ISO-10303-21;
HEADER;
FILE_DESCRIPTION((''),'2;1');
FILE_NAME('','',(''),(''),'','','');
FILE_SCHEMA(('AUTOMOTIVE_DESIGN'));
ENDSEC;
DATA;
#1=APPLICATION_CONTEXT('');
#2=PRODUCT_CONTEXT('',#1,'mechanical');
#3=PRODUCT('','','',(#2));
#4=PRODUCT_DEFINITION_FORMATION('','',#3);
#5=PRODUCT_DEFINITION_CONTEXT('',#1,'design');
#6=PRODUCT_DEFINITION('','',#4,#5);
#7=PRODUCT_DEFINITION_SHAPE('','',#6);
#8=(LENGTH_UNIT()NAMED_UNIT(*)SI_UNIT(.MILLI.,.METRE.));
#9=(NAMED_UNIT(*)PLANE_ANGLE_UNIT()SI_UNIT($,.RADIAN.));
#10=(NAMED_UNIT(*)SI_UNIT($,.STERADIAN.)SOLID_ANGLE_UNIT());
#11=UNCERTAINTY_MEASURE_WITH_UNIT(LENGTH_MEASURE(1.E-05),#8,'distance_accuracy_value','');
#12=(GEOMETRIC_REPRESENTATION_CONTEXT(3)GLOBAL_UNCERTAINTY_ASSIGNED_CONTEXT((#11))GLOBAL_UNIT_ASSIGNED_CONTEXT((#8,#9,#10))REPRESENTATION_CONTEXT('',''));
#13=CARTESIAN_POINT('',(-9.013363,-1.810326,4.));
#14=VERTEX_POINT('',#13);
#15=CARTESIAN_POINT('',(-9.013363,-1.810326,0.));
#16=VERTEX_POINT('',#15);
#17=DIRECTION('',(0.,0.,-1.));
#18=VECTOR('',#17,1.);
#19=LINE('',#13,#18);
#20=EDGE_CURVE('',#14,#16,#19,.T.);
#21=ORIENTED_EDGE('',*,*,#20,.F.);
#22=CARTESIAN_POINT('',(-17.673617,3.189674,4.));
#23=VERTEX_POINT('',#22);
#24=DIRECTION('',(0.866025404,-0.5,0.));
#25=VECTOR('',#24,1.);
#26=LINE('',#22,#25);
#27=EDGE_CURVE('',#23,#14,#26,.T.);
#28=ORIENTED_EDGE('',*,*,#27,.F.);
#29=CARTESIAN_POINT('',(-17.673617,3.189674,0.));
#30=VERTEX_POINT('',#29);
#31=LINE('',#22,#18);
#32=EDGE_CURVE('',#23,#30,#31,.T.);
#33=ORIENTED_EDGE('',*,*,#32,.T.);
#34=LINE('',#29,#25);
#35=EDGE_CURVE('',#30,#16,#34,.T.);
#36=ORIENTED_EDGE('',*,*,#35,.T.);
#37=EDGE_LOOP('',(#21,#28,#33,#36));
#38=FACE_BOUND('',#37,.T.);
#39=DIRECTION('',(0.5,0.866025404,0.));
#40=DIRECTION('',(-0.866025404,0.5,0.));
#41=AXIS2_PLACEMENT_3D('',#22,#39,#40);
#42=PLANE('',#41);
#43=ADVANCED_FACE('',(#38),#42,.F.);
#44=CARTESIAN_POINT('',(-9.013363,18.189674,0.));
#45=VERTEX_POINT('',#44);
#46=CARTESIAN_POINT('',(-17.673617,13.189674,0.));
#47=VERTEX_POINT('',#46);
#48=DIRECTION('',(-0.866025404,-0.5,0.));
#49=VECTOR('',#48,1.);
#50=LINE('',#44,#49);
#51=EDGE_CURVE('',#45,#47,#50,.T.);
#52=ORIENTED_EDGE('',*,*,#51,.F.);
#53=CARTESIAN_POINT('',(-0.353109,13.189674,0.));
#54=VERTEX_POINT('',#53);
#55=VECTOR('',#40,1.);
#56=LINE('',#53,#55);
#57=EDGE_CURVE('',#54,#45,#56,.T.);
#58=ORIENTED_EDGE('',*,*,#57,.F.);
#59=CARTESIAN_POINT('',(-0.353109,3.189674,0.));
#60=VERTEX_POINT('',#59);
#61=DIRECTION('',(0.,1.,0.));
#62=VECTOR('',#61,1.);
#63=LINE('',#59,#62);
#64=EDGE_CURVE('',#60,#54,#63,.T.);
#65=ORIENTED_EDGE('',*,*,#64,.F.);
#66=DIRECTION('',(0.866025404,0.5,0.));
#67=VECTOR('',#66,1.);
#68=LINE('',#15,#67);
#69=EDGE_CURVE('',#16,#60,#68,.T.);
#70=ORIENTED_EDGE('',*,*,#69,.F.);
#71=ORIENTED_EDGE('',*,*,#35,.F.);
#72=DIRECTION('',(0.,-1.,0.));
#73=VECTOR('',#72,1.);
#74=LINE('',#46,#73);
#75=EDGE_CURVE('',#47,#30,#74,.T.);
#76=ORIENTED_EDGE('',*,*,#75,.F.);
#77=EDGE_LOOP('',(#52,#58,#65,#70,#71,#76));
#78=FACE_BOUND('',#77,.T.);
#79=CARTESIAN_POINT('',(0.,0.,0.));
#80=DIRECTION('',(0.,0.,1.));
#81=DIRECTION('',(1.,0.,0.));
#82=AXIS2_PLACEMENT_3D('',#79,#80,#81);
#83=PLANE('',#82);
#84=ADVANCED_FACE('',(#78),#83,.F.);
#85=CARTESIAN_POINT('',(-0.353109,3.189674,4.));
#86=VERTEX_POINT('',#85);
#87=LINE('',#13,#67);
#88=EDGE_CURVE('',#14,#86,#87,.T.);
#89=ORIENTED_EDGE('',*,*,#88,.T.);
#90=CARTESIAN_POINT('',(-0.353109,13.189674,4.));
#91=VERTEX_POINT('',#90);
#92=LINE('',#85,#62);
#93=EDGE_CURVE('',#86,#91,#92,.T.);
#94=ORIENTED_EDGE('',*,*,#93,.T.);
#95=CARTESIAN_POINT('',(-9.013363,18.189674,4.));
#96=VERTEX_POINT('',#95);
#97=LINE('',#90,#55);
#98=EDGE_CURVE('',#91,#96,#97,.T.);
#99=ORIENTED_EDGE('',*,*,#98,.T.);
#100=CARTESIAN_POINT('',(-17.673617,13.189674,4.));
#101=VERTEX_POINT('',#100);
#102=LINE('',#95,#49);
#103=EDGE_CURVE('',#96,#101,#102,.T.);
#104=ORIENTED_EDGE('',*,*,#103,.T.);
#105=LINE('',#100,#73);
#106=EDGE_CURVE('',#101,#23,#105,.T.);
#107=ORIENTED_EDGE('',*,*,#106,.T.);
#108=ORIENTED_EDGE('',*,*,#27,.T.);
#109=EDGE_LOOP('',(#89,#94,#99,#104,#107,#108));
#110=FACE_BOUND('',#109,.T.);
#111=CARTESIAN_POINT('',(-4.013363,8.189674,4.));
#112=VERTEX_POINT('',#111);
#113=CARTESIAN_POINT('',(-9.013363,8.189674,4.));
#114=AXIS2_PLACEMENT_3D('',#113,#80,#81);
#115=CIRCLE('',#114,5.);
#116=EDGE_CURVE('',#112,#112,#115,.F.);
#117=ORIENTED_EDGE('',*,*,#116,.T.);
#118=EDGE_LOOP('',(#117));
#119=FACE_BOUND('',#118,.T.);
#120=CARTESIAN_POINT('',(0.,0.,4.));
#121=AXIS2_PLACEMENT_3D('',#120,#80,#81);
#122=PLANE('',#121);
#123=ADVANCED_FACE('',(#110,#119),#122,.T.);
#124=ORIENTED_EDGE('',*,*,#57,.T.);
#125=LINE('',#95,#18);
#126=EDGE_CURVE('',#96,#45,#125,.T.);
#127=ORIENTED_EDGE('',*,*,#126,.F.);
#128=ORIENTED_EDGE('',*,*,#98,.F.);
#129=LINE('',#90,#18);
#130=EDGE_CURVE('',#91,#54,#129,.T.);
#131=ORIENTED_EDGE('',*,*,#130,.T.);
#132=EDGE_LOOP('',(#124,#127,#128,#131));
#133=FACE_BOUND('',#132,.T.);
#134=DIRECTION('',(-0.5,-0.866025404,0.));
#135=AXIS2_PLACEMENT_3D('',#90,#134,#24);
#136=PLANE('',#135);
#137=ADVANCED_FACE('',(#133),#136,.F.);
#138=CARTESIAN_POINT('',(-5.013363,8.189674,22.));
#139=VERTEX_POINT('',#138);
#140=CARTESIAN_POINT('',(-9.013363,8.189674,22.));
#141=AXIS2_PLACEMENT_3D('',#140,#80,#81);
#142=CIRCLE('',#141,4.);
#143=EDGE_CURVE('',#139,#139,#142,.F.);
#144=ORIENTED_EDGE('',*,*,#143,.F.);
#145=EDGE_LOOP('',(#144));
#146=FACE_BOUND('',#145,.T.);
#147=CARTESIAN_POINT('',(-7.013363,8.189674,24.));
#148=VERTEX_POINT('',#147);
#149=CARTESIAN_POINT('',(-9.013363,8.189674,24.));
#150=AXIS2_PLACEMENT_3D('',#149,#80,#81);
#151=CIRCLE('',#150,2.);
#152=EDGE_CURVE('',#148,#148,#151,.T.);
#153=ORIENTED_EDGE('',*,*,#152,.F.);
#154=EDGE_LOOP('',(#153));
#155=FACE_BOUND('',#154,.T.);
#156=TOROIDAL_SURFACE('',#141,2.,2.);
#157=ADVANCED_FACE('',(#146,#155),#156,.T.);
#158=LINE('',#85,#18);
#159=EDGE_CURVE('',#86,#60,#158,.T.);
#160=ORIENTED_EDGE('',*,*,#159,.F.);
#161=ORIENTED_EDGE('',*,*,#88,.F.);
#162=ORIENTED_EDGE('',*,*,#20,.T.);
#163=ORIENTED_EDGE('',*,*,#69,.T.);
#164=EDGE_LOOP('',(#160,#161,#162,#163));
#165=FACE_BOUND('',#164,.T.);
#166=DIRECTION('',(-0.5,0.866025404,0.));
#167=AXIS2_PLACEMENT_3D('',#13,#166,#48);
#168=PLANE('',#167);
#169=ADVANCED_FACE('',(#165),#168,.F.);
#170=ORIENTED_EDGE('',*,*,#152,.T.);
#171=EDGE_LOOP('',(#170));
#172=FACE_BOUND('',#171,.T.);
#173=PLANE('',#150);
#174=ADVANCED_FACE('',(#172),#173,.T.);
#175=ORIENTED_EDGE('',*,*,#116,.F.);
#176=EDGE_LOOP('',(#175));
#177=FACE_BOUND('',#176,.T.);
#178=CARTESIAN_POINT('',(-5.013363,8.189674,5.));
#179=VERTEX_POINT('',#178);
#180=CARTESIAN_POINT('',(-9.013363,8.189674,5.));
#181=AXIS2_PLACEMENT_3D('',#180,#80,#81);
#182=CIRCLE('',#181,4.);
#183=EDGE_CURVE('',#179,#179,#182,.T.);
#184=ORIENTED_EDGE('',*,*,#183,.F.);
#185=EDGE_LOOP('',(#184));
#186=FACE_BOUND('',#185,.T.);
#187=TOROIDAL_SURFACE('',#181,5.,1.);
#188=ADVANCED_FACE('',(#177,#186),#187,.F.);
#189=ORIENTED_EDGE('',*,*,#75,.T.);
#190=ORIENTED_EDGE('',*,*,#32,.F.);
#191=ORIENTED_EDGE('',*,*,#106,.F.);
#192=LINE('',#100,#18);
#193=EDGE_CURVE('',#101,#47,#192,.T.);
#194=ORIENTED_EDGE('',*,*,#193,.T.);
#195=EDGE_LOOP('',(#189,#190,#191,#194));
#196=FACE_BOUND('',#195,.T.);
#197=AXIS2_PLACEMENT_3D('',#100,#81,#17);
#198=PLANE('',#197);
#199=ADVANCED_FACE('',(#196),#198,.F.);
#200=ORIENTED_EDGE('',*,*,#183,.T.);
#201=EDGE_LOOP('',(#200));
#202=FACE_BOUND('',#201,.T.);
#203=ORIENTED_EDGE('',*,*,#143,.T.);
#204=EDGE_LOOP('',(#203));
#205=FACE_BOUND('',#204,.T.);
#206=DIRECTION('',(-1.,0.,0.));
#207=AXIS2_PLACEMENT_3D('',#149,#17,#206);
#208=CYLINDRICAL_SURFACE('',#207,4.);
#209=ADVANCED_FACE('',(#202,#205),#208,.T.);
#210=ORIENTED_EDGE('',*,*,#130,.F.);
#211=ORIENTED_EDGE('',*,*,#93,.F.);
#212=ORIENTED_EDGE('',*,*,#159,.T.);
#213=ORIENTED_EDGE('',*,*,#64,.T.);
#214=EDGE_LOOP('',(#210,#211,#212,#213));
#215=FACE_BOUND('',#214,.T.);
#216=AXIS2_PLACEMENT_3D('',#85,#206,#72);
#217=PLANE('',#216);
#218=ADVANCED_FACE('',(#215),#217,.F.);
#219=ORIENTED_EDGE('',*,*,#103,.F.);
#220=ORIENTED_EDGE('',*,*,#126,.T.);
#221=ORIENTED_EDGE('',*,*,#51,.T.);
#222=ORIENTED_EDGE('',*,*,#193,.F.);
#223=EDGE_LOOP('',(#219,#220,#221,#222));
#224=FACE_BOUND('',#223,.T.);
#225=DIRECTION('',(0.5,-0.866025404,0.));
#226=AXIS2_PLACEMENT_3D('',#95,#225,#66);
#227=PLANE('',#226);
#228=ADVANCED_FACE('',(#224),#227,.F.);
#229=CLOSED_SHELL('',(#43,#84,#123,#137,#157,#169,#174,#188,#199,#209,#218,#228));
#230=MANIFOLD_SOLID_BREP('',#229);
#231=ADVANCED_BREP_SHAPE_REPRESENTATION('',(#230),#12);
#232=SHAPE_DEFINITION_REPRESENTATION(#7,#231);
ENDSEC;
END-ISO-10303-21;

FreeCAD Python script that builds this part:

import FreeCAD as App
import Part
import Sketcher

V = App.Vector
Q = App.Units.Quantity


def edges_at(feature, points):
    """Names of the edges that pass closest to the given points."""
    edges = feature.Shape.Edges
    near = lambda p: min(range(len(edges)), key=lambda i: edges[i].distToShape(Part.Vertex(*p))[0])
    return sorted({f"Edge{near(p) + 1}" for p in points})

doc = App.newDocument("Part")
body = doc.addObject("PartDesign::Body", "Body")

# Sketch on XY plane
sketch1 = body.newObject("Sketcher::SketchObject", "Sketch")
sketch1.AttachmentSupport = (doc.getObject("XY_Plane"), [""])
sketch1.MapMode = "FlatFace"
sketch1.addGeometry([
    Part.LineSegment(V(0, 3, 0), V(0, 13, 0)),  # 0
    Part.LineSegment(V(0, 13, 0), V(-9, 18, 0)),  # 1
    Part.LineSegment(V(-9, 18, 0), V(-18, 13, 0)),  # 2
    Part.LineSegment(V(-18, 13, 0), V(-18, 3, 0)),  # 3
    Part.LineSegment(V(-18, 3, 0), V(-9, -2, 0)),  # 4
    Part.LineSegment(V(-9, -2, 0), V(0, 3, 0)),  # 5
], False)
sketch1.addConstraint([
    Sketcher.Constraint("Coincident", 0, 2, 1, 1),
    Sketcher.Constraint("Coincident", 1, 2, 2, 1),
    Sketcher.Constraint("Coincident", 2, 2, 3, 1),
    Sketcher.Constraint("Coincident", 3, 2, 4, 1),
    Sketcher.Constraint("Coincident", 4, 2, 5, 1),
    Sketcher.Constraint("Coincident", 5, 2, 0, 1),
    Sketcher.Constraint("Vertical", 0),
    Sketcher.Constraint("Vertical", 3),
    Sketcher.Constraint("Parallel", 1, 4),
    Sketcher.Constraint("Parallel", 2, 5),
    Sketcher.Constraint("Horizontal", 0, 2, 2, 2),
    Sketcher.Constraint("Horizontal", 3, 2, 5, 2),
    Sketcher.Constraint("Vertical", 1, 2, 4, 2),
    Sketcher.Constraint("DistanceY", 0, 1, 0, 2, 10.0),
    Sketcher.Constraint("Angle", 1, Q("150 deg")),
    Sketcher.Constraint("Distance", 1, 10.0),
    Sketcher.Constraint("DistanceX", 0, 2, -1, 1, 0.353109),
    Sketcher.Constraint("DistanceY", -1, 1, 0, 2, 13.189674),
])
pad1 = body.newObject("PartDesign::Pad", "Pad")
pad1.Profile = sketch1
pad1.Length = 4

# Sketch on XY plane
sketch2 = body.newObject("Sketcher::SketchObject", "Sketch001")
sketch2.AttachmentSupport = (doc.getObject("XY_Plane"), [""])
sketch2.MapMode = "FlatFace"
sketch2.AttachmentOffset = App.Placement(V(0, 0, 4), App.Rotation())
sketch2.addGeometry(Part.Circle(V(-9, 8.2, 0), V(0, 0, 1), 4), False)
sketch2.addConstraint([
    Sketcher.Constraint("Diameter", 0, 8.0),
    Sketcher.Constraint("DistanceX", 0, 3, -1, 1, 9.013363),
    Sketcher.Constraint("DistanceY", -1, 1, 0, 3, 8.189674),
])
pad2 = body.newObject("PartDesign::Pad", "Pad001")
pad2.Profile = sketch2
pad2.Length = 20
doc.recompute()

fillet = body.newObject("PartDesign::Fillet", "Fillet")
fillet.Base = (pad2, edges_at(pad2, [(-13.013, 8.19, 24)]))
fillet.Radius = 2
doc.recompute()

fillet2 = body.newObject("PartDesign::Fillet", "Fillet001")
fillet2.Base = (fillet, edges_at(fillet, [(-13.013, 8.19, 4)]))
fillet2.Radius = 1

doc.recompute()
